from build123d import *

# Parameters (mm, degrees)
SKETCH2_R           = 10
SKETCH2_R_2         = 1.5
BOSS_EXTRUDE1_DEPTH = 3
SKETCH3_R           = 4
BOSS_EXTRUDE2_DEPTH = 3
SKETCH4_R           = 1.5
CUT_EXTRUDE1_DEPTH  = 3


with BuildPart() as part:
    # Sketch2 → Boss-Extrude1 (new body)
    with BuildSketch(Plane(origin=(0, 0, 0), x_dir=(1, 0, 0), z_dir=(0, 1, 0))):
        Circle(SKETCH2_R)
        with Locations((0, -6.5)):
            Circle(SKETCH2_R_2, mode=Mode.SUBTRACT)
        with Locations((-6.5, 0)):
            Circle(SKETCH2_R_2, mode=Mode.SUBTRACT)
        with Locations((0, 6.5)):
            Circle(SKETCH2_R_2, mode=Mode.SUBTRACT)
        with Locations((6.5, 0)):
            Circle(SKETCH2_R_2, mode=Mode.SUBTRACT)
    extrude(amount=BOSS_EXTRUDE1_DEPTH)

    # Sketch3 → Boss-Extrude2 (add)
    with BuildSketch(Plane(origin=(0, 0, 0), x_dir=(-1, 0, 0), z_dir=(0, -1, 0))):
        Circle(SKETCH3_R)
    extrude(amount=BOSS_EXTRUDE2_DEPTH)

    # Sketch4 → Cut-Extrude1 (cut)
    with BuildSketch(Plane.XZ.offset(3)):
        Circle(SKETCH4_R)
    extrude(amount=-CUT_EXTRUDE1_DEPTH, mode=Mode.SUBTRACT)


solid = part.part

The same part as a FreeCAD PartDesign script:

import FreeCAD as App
import Part
import Sketcher
from FreeCAD import Vector
Q = App.Units.Quantity

doc = App.newDocument("Part")
body = doc.addObject("PartDesign::Body", "Body")

# Sketch on XZ plane
sketch1 = doc.addObject("Sketcher::SketchObject", "Sketch")
body.addObject(sketch1)
sketch1.AttachmentSupport = (doc.XZ_Plane, [""])
sketch1.MapMode = "FlatFace"
sketch1.addGeometry([
    Part.Circle(Vector(0, 0, 0), Vector(0, 0, 1), 10),  # 0
    Part.Circle(Vector(-6.5, 0, 0), Vector(0, 0, 1), 1.5),  # 1
    Part.Circle(Vector(0, 6.5, 0), Vector(0, 0, 1), 1.5),  # 2
    Part.Circle(Vector(6.5, 0, 0), Vector(0, 0, 1), 1.5),  # 3
    Part.Circle(Vector(0, -6.5, 0), Vector(0, 0, 1), 1.5),  # 4
], False)
sketch1.addConstraint([
    Sketcher.Constraint("Coincident", 0, 3, -1, 1),
    Sketcher.Constraint("Equal", 1, 2),
    Sketcher.Constraint("Equal", 2, 3),
    Sketcher.Constraint("Equal", 3, 4),
    Sketcher.Constraint("Symmetric", 1, 3, 3, 3, -1, 1),
    Sketcher.Constraint("Symmetric", 2, 3, 4, 3, -1, 1),
    Sketcher.Constraint("PointOnObject", 1, 3, -1),
    Sketcher.Constraint("PointOnObject", 2, 3, -2),
    Sketcher.Constraint("Diameter", 0, Q("20 mm")),
    Sketcher.Constraint("Diameter", 1, Q("3 mm")),
    Sketcher.Constraint("DistanceX", 1, 3, 3, 3, Q("13 mm")),
    Sketcher.Constraint("DistanceY", 4, 3, 2, 3, Q("13 mm")),
])
pad1 = doc.addObject("PartDesign::Pad", "Pad")
body.addObject(pad1)
pad1.Profile = sketch1
pad1.Length = 3
pad1.Reversed = True

# Sketch on XZ plane
sketch2 = doc.addObject("Sketcher::SketchObject", "Sketch001")
body.addObject(sketch2)
sketch2.AttachmentSupport = (doc.XZ_Plane, [""])
sketch2.MapMode = "FlatFace"
sketch2.addGeometry(Part.Circle(Vector(0, 0, 0), Vector(0, 0, 1), 4), False)
sketch2.addConstraint([
    Sketcher.Constraint("Coincident", 0, 3, -1, 1),
    Sketcher.Constraint("Diameter", 0, Q("8 mm")),
])
pad2 = doc.addObject("PartDesign::Pad", "Pad001")
body.addObject(pad2)
pad2.Profile = sketch2
pad2.Length = 3

# Sketch on XZ plane
sketch3 = doc.addObject("Sketcher::SketchObject", "Sketch002")
body.addObject(sketch3)
sketch3.AttachmentSupport = (doc.XZ_Plane, [""])
sketch3.MapMode = "FlatFace"
sketch3.AttachmentOffset = App.Placement(Vector(0, 0, 3), App.Rotation())
sketch3.addGeometry(Part.Circle(Vector(0, 0, 0), Vector(0, 0, 1), 1.5), False)
sketch3.addConstraint([
    Sketcher.Constraint("Coincident", 0, 3, -1, 1),
    Sketcher.Constraint("Diameter", 0, Q("3 mm")),
])
pocket1 = doc.addObject("PartDesign::Pocket", "Pocket")
body.addObject(pocket1)
pocket1.Profile = sketch3
pocket1.Length = 3

doc.recompute()
